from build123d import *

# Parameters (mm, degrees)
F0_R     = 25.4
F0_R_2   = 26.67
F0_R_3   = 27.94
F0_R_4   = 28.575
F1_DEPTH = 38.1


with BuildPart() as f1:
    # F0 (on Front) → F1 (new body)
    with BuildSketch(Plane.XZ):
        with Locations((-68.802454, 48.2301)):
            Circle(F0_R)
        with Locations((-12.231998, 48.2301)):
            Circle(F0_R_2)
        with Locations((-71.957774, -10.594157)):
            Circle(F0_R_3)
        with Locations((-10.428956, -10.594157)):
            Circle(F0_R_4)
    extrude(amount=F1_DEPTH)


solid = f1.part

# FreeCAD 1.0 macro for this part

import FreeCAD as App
import Part
import Sketcher

V = App.Vector
Q = App.Units.Quantity

doc = App.newDocument("Part")
body = doc.addObject("PartDesign::Body", "Body")
body.AllowCompound = True

sketch1 = body.newObject("Sketcher::SketchObject", "Sketch")
sketch1.AttachmentSupport = (doc.getObject("XZ_Plane"), [""])
sketch1.MapMode = "FlatFace"
sketch1.addGeometry([
    Part.Circle(V(-69, 48, 0), V(0, 0, 1), 25),
    Part.Circle(V(-12, 48, 0), V(0, 0, 1), 27),
    Part.Circle(V(-72, -11, 0), V(0, 0, 1), 28),
    Part.Circle(V(-10, -11, 0), V(0, 0, 1), 29),
], False)
sketch1.addConstraint([
    Sketcher.Constraint("Horizontal", 0, 3, 1, 3),
    Sketcher.Constraint("Horizontal", 2, 3, 3, 3),
    Sketcher.Constraint("Diameter", 0, Q("2 in")),
    Sketcher.Constraint("Diameter", 1, Q("2.1 in")),
    Sketcher.Constraint("Diameter", 2, Q("2.2 in")),
    Sketcher.Constraint("Diameter", 3, Q("2.25 in")),
    Sketcher.Constraint("DistanceY", -1, 1, 0, 3, 48.2301),
    Sketcher.Constraint("DistanceX", 1, 3, -1, 1, 12.231998),
    Sketcher.Constraint("DistanceX", 2, 3, 0, 3, 3.15532),
    Sketcher.Constraint("DistanceX", 0, 3, -1, 1, 68.802454),
    Sketcher.Constraint("DistanceY", 2, 3, -1, 1, 10.594157),
    Sketcher.Constraint("DistanceX", 3, 3, -1, 1, 10.428956),
])
pad1 = body.newObject("PartDesign::Pad", "Pad")
pad1.Profile = sketch1
pad1.Length = Q("1.5 in")

doc.recompute()
